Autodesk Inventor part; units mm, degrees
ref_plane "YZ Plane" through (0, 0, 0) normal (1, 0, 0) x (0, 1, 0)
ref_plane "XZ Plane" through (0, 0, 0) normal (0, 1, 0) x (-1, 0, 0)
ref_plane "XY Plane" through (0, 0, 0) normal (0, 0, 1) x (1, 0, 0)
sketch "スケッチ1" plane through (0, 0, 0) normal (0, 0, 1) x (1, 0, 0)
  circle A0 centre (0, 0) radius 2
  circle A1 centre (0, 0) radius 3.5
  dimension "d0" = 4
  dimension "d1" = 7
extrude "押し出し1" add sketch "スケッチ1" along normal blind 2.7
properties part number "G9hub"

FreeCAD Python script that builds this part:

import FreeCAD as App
import Part
import Sketcher
from FreeCAD import Vector
Q = App.Units.Quantity

doc = App.newDocument("Part")
body = doc.addObject("PartDesign::Body", "Body")

# Sketch on XY plane
sketch1 = doc.addObject("Sketcher::SketchObject", "Sketch")
body.addObject(sketch1)
sketch1.AttachmentSupport = (doc.XY_Plane, [""])
sketch1.MapMode = "FlatFace"
sketch1.addGeometry(Part.Circle(Vector(0, 0, 0), Vector(0, 0, 1), 3.5), False)
sketch1.addGeometry(Part.Circle(Vector(0, 0, 0), Vector(0, 0, 1), 2), False)
sketch1.addConstraint(Sketcher.Constraint("Coincident", 0, 3, -1, 1))
sketch1.addConstraint(Sketcher.Constraint("Coincident", 1, 3, -1, 1))
sketch1.addConstraint(Sketcher.Constraint("Diameter", 0, Q("7 mm")))
sketch1.addConstraint(Sketcher.Constraint("Diameter", 1, Q("4 mm")))
pad1 = doc.addObject("PartDesign::Pad", "Pad")
body.addObject(pad1)
pad1.Profile = sketch1
pad1.Length = 2.7

doc.recompute()
